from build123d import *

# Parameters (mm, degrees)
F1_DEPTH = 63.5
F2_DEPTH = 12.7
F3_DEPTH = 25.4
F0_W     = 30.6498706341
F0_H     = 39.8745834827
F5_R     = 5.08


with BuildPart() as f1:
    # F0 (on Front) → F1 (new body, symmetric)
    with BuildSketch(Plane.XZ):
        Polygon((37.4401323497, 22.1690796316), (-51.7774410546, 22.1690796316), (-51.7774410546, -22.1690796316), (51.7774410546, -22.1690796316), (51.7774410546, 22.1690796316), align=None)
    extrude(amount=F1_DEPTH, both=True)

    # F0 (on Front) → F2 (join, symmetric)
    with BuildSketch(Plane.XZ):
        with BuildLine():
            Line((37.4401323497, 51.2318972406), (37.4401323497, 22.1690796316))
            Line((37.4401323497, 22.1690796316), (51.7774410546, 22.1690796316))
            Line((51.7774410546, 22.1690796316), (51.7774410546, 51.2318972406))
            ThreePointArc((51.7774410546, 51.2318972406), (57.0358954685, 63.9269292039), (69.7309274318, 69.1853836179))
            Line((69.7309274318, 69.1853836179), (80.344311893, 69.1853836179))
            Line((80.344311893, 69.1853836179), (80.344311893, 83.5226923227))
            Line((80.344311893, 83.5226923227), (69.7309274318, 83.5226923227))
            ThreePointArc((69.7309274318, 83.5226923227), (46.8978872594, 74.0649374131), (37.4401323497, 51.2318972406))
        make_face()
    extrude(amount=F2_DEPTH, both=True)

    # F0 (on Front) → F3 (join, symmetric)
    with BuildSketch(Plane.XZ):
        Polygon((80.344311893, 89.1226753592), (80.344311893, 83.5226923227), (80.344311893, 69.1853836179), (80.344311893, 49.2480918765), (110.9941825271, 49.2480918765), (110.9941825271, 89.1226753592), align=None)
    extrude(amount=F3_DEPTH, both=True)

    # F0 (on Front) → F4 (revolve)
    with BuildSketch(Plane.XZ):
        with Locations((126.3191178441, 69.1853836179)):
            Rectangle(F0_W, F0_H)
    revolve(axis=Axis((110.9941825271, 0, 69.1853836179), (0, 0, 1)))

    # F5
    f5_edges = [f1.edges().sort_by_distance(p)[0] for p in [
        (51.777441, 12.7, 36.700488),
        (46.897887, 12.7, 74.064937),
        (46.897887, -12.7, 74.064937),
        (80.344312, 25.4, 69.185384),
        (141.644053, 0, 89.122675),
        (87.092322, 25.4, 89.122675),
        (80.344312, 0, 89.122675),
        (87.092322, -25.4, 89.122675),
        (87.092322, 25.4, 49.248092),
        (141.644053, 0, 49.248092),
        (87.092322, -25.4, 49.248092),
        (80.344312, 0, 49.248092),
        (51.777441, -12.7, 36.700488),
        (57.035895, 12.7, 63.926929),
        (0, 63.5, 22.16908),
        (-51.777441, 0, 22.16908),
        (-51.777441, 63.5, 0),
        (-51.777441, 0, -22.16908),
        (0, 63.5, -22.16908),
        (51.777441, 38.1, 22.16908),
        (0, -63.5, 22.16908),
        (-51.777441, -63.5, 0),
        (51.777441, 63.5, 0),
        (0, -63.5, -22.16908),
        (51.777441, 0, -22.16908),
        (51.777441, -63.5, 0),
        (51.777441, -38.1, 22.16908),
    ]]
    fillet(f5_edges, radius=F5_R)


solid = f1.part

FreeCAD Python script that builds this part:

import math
import FreeCAD as App
import Part
import Sketcher
Q = App.Units.Quantity


def edges_at(feature, points):
    """Names of the edges that pass closest to the given points."""
    edges = feature.Shape.Edges
    near = lambda p: min(range(len(edges)), key=lambda i: edges[i].distToShape(Part.Vertex(*p))[0])
    return sorted({f"Edge{near(p) + 1}" for p in points})

doc = App.newDocument("Part")
body = doc.addObject("PartDesign::Body", "Body")

sketch1 = body.newObject("Sketcher::SketchObject", "Sketch")
sketch1.AttachmentSupport = (doc.getObject("XZ_Plane"), [""])
sketch1.MapMode = "FlatFace"
sketch1.addGeometry([
    Part.LineSegment(App.Vector(-51.777441, 22.16908, 0), App.Vector(-51.777441, -22.16908, 0)),
    Part.LineSegment(App.Vector(-51.777441, -22.16908, 0), App.Vector(51.777441, -22.16908, 0)),
    Part.LineSegment(App.Vector(51.777441, -22.16908, 0), App.Vector(51.777441, 22.16908, 0)),
    Part.LineSegment(App.Vector(51.777441, 22.16908, 0), App.Vector(-51.777441, 22.16908, 0)),
], False)
sketch1.addConstraint([
    Sketcher.Constraint("Coincident", 0, 2, 1, 1),
    Sketcher.Constraint("Coincident", 1, 2, 2, 1),
    Sketcher.Constraint("Coincident", 2, 2, 3, 1),
    Sketcher.Constraint("Coincident", 3, 2, 0, 1),
    Sketcher.Constraint("Vertical", 0),
    Sketcher.Constraint("Horizontal", 1),
    Sketcher.Constraint("Vertical", 2),
    Sketcher.Constraint("Horizontal", 3),
    Sketcher.Constraint("Symmetric", 0, 2, 2, 2, -1, 1),
    Sketcher.Constraint("DistanceY", 0, 2, 0, 1, Q("44.338159 mm")),
    Sketcher.Constraint("DistanceX", 1, 1, 1, 2, Q("103.554882 mm")),
])
pad1 = body.newObject("PartDesign::Pad", "Pad")
pad1.Profile = sketch1
pad1.Length = Q("5 in")
pad1.Midplane = True

sketch2 = body.newObject("Sketcher::SketchObject", "Sketch001")
sketch2.AttachmentSupport = (doc.getObject("XZ_Plane"), [""])
sketch2.MapMode = "FlatFace"
sketch2.addGeometry([
    Part.LineSegment(App.Vector(37.440132, 51.231897, 0), App.Vector(37.440132, 22.16908, 0)),
    Part.LineSegment(App.Vector(37.440132, 22.16908, 0), App.Vector(51.777441, 22.16908, 0)),
    Part.LineSegment(App.Vector(51.777441, 22.16908, 0), App.Vector(51.777441, 51.231897, 0)),
    Part.ArcOfCircle(Part.Circle(App.Vector(69.730927, 51.231897, 0), App.Vector(0, 0, 1), 17.953486), math.radians(90), math.radians(180)),
    Part.LineSegment(App.Vector(69.730927, 69.185384, 0), App.Vector(80.344312, 69.185384, 0)),
    Part.LineSegment(App.Vector(80.344312, 69.185384, 0), App.Vector(80.344312, 83.522692, 0)),
    Part.LineSegment(App.Vector(80.344312, 83.522692, 0), App.Vector(69.730927, 83.522692, 0)),
    Part.ArcOfCircle(Part.Circle(App.Vector(69.730927, 51.231897, 0), App.Vector(0, 0, 1), 32.290795), math.radians(90), math.radians(180)),
], False)
sketch2.addConstraint([
    Sketcher.Constraint("Coincident", 0, 2, 1, 1),
    Sketcher.Constraint("Coincident", 1, 2, 2, 1),
    Sketcher.Constraint("Tangent", 2, 2, 3, 2),
    Sketcher.Constraint("Tangent", 3, 1, 4, 1),
    Sketcher.Constraint("Coincident", 4, 2, 5, 1),
    Sketcher.Constraint("Coincident", 5, 2, 6, 1),
    Sketcher.Constraint("Tangent", 6, 2, 7, 1),
    Sketcher.Constraint("Tangent", 7, 2, 0, 1),
    Sketcher.Constraint("Vertical", 0),
    Sketcher.Constraint("Horizontal", 1),
    Sketcher.Constraint("Vertical", 2),
    Sketcher.Constraint("Horizontal", 4),
    Sketcher.Constraint("Vertical", 5),
    Sketcher.Constraint("Horizontal", 6),
    Sketcher.Constraint("Coincident", 7, 3, 3, 3),
    Sketcher.Constraint("Radius", 3, Q("17.953486 mm")),
    Sketcher.Constraint("Radius", 7, Q("32.290795 mm")),
    Sketcher.Constraint("DistanceX", 4, 1, 4, 2, Q("10.613384 mm")),
    Sketcher.Constraint("DistanceY", 0, 2, 0, 1, Q("29.062818 mm")),
    Sketcher.Constraint("DistanceY", -1, 1, 0, 2, Q("22.16908 mm")),
    Sketcher.Constraint("DistanceX", -1, 1, 1, 2, Q("51.777441 mm")),
])
pad2 = body.newObject("PartDesign::Pad", "Pad001")
pad2.Profile = sketch2
pad2.Length = Q("1 in")
pad2.Midplane = True

sketch3 = body.newObject("Sketcher::SketchObject", "Sketch002")
sketch3.AttachmentSupport = (doc.getObject("XZ_Plane"), [""])
sketch3.MapMode = "FlatFace"
sketch3.addGeometry([
    Part.LineSegment(App.Vector(80.344312, 89.122675, 0), App.Vector(80.344312, 49.248092, 0)),
    Part.LineSegment(App.Vector(80.344312, 49.248092, 0), App.Vector(110.994183, 49.248092, 0)),
    Part.LineSegment(App.Vector(110.994183, 49.248092, 0), App.Vector(110.994183, 89.122675, 0)),
    Part.LineSegment(App.Vector(110.994183, 89.122675, 0), App.Vector(80.344312, 89.122675, 0)),
], False)
sketch3.addConstraint([
    Sketcher.Constraint("Coincident", 0, 2, 1, 1),
    Sketcher.Constraint("Coincident", 1, 2, 2, 1),
    Sketcher.Constraint("Coincident", 2, 2, 3, 1),
    Sketcher.Constraint("Coincident", 3, 2, 0, 1),
    Sketcher.Constraint("Vertical", 0),
    Sketcher.Constraint("Horizontal", 1),
    Sketcher.Constraint("Vertical", 2),
    Sketcher.Constraint("Horizontal", 3),
    Sketcher.Constraint("DistanceX", 1, 1, 1, 2, Q("30.649871 mm")),
    Sketcher.Constraint("DistanceY", 0, 2, 0, 1, Q("39.874583 mm")),
    Sketcher.Constraint("DistanceX", -1, 1, 0, 2, Q("80.344312 mm")),
    Sketcher.Constraint("DistanceY", -1, 1, 0, 2, Q("49.248092 mm")),
])
pad3 = body.newObject("PartDesign::Pad", "Pad002")
pad3.Profile = sketch3
pad3.Length = Q("2 in")
pad3.Midplane = True

sketch4 = body.newObject("Sketcher::SketchObject", "Sketch003")
sketch4.AttachmentSupport = (doc.getObject("XZ_Plane"), [""])
sketch4.MapMode = "FlatFace"
sketch4.addGeometry([
    Part.LineSegment(App.Vector(110.994183, 89.122675, 0), App.Vector(110.994183, 49.248092, 0)),
    Part.LineSegment(App.Vector(110.994183, 49.248092, 0), App.Vector(141.644053, 49.248092, 0)),
    Part.LineSegment(App.Vector(141.644053, 49.248092, 0), App.Vector(141.644053, 89.122675, 0)),
    Part.LineSegment(App.Vector(141.644053, 89.122675, 0), App.Vector(110.994183, 89.122675, 0)),
], False)
sketch4.addGeometry(Part.LineSegment(App.Vector(110.994183, 49.248092, 0), App.Vector(110.994183, 89.122675, 0)), True)
sketch4.addConstraint([
    Sketcher.Constraint("Coincident", 0, 2, 1, 1),
    Sketcher.Constraint("Coincident", 1, 2, 2, 1),
    Sketcher.Constraint("Coincident", 2, 2, 3, 1),
    Sketcher.Constraint("Coincident", 3, 2, 0, 1),
    Sketcher.Constraint("Vertical", 0),
    Sketcher.Constraint("Horizontal", 1),
    Sketcher.Constraint("Vertical", 2),
    Sketcher.Constraint("Horizontal", 3),
    Sketcher.Constraint("Vertical", 4),
    Sketcher.Constraint("Coincident", 4, 1, 0, 2),
    Sketcher.Constraint("Horizontal", 2, 2, 4, 2),
    Sketcher.Constraint("DistanceX", 1, 1, 1, 2, Q("30.649871 mm")),
    Sketcher.Constraint("DistanceY", 0, 2, 0, 1, Q("39.874583 mm")),
    Sketcher.Constraint("DistanceY", -1, 1, 0, 2, Q("49.248092 mm")),
    Sketcher.Constraint("DistanceX", -1, 1, 0, 2, Q("110.994183 mm")),
])
revolution = body.newObject("PartDesign::Revolution", "Revolution")
revolution.Profile = sketch4
revolution.ReferenceAxis = (sketch4, ["Axis0"])
revolution.Angle = 360
doc.recompute()

fillet = body.newObject("PartDesign::Fillet", "Fillet")
fillet.Base = (revolution, edges_at(revolution, [
    (51.777, 12.7, 36.7),
    (46.898, 12.7, 74.065),
    (46.898, -12.7, 74.065),
    (80.344, 25.4, 69.185),
    (141.644, 0, 89.123),
    (87.092, 25.4, 89.123),
    (80.344, 0, 89.123),
    (87.092, -25.4, 89.123),
    (87.092, 25.4, 49.248),
    (141.644, 0, 49.248),
    (87.092, -25.4, 49.248),
    (80.344, 0, 49.248),
    (51.777, -12.7, 36.7),
    (57.036, 12.7, 63.927),
    (0, 63.5, 22.169),
    (-51.777, 0, 22.169),
    (-51.777, 63.5, 0),
    (-51.777, 0, -22.169),
    (0, 63.5, -22.169),
    (51.777, 38.1, 22.169),
    (0, -63.5, 22.169),
    (-51.777, -63.5, 0),
    (51.777, 63.5, 0),
    (0, -63.5, -22.169),
    (51.777, 0, -22.169),
    (51.777, -63.5, 0),
    (51.777, -38.1, 22.169),
]))
fillet.Radius = Q("0.2 in")

doc.recompute()
